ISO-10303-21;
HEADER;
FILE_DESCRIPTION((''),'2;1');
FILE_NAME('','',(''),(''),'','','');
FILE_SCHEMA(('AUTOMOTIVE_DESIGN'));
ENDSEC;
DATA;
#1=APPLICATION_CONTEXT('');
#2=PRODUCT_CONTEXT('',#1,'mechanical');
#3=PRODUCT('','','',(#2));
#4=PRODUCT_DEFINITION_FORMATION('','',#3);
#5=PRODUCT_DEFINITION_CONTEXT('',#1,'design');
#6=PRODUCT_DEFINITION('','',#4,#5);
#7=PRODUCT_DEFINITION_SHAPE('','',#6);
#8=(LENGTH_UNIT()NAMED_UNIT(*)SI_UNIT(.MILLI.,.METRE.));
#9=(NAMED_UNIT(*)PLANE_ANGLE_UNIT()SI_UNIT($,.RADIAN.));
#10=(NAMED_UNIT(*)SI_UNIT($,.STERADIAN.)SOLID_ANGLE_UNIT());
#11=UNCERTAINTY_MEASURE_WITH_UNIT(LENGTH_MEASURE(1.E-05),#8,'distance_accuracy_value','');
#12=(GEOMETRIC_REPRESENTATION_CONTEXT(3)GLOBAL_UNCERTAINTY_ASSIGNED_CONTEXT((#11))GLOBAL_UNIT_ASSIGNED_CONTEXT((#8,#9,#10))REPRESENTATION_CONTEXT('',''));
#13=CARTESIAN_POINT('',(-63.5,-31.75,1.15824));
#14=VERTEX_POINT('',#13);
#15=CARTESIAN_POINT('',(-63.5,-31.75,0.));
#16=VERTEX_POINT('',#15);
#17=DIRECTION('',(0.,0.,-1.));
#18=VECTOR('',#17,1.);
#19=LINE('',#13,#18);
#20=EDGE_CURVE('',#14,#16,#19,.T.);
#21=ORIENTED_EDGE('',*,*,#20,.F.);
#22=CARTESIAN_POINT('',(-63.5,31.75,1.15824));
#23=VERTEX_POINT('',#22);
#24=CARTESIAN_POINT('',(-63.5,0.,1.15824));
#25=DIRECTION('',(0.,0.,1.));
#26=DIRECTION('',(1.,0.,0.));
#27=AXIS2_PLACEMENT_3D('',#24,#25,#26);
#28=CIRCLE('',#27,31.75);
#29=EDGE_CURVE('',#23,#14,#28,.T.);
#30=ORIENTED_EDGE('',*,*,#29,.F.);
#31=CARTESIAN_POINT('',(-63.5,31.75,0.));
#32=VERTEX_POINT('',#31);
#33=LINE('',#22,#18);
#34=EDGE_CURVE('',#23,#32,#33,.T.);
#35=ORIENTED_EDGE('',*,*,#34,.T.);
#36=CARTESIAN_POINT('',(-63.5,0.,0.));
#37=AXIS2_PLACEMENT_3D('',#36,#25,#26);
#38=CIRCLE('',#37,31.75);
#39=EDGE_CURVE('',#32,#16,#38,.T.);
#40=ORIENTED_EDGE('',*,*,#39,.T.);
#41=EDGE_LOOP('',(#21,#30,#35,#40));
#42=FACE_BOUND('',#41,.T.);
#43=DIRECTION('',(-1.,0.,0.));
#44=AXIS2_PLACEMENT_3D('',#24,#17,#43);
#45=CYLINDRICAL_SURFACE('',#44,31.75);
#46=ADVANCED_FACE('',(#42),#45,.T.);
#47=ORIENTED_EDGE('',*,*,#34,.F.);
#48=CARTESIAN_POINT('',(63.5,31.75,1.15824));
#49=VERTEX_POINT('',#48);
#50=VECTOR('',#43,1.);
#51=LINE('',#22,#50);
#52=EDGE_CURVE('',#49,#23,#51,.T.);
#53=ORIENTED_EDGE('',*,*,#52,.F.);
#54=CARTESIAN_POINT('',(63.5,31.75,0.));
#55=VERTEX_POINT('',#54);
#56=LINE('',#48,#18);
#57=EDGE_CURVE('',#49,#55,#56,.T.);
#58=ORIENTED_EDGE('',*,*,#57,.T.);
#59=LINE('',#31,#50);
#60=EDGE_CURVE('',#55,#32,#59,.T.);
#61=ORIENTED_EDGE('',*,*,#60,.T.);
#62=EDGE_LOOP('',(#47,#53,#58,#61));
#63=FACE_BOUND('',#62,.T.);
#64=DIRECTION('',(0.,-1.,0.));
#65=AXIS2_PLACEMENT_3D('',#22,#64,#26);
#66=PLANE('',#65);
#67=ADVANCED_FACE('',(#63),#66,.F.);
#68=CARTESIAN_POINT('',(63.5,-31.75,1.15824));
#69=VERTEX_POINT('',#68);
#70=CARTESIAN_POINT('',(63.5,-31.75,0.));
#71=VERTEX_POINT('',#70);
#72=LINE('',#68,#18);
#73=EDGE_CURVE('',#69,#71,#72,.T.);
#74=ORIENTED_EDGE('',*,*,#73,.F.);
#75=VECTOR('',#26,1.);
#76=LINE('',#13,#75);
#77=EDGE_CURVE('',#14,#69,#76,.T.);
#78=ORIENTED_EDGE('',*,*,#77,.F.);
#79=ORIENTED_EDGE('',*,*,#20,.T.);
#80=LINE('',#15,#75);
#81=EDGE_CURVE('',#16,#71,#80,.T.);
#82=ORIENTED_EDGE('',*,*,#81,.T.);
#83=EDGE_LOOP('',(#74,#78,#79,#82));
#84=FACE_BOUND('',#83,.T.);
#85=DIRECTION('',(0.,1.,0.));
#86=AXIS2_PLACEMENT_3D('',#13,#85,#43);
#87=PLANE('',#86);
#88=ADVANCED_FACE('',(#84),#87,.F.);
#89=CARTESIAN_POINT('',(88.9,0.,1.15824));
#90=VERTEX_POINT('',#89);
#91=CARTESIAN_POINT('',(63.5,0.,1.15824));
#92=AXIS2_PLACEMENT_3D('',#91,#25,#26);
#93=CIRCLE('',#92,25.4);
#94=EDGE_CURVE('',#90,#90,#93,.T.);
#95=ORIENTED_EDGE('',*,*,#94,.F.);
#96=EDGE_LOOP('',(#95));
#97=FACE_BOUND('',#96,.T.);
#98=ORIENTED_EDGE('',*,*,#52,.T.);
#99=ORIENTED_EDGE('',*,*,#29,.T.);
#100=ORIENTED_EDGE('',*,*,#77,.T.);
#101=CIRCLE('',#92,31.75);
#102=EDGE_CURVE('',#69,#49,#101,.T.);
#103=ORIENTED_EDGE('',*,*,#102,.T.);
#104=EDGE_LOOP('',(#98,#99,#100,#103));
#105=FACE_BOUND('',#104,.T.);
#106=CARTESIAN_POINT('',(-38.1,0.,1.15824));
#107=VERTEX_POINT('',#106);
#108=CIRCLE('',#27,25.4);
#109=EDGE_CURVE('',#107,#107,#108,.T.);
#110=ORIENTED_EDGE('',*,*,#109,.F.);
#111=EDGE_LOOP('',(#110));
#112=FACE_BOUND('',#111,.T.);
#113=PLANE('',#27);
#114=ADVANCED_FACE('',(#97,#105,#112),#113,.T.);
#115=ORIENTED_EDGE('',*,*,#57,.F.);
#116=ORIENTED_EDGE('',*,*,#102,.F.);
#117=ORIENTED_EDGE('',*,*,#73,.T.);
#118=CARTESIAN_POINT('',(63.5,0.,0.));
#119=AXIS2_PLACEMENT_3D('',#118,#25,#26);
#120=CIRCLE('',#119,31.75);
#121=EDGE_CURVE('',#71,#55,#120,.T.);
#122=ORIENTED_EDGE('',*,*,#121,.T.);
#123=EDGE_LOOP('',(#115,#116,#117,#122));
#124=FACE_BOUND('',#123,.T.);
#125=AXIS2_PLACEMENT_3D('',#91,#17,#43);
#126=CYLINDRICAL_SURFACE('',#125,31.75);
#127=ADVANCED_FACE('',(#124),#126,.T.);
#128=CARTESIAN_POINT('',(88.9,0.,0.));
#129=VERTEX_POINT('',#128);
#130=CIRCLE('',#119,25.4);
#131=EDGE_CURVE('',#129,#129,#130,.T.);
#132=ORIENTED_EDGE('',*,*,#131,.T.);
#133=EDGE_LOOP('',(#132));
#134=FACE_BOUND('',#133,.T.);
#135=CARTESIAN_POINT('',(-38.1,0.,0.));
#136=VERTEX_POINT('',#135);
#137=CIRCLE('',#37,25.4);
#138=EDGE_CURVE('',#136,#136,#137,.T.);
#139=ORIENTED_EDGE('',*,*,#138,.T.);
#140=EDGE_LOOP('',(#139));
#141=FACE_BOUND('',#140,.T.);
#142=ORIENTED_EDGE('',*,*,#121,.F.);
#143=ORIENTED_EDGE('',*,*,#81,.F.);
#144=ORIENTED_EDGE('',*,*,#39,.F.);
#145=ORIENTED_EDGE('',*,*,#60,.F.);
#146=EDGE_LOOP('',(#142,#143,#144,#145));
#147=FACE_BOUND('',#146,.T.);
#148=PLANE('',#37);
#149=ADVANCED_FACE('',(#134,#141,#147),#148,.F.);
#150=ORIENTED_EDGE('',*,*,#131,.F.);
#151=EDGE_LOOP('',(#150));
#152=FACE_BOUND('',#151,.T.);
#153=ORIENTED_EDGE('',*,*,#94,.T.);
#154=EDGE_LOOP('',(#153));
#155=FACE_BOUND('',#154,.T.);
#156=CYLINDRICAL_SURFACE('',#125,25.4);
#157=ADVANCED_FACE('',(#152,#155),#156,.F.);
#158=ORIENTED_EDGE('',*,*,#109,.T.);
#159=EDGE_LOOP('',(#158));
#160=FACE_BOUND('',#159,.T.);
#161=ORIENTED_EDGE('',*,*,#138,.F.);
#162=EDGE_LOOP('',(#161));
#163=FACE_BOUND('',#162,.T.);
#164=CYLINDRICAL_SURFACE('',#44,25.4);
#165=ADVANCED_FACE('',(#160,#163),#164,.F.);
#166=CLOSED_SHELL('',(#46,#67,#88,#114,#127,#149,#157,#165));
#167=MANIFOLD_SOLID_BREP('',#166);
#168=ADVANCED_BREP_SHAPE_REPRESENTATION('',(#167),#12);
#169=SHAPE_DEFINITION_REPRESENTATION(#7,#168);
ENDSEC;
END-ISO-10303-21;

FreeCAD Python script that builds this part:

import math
import FreeCAD as App
import Part
import Sketcher
from FreeCAD import Vector
Q = App.Units.Quantity

doc = App.newDocument("Part")
body = doc.addObject("PartDesign::Body", "Body")

# Sketch on XY plane
sketch1 = doc.addObject("Sketcher::SketchObject", "Sketch")
body.addObject(sketch1)
sketch1.AttachmentSupport = (doc.XY_Plane, [""])
sketch1.MapMode = "FlatFace"
sketch1.addGeometry([
    Part.LineSegment(Vector(63.5, 31.75, 0), Vector(-63.5, 31.75, 0)),  # 0
    Part.ArcOfCircle(Part.Circle(Vector(-63.5, 0, 0), Vector(0, 0, 1), 31.75), math.radians(90), math.radians(270)),  # 1
    Part.LineSegment(Vector(-63.5, -31.75, 0), Vector(63.5, -31.75, 0)),  # 2
    Part.ArcOfCircle(Part.Circle(Vector(63.5, 0, 0), Vector(0, 0, 1), 31.75), math.radians(-90), math.radians(90)),  # 3
    Part.Circle(Vector(63.5, 0, 0), Vector(0, 0, 1), 25.4),  # 4
    Part.Circle(Vector(-63.5, 0, 0), Vector(0, 0, 1), 25.4),  # 5
], False)
sketch1.addConstraint([
    Sketcher.Constraint("Tangent", 0, 2, 1, 1),
    Sketcher.Constraint("Tangent", 1, 2, 2, 1),
    Sketcher.Constraint("Tangent", 2, 2, 3, 1),
    Sketcher.Constraint("Tangent", 3, 2, 0, 1),
    Sketcher.Constraint("Horizontal", 0),
    Sketcher.Constraint("Horizontal", 2),
    Sketcher.Constraint("Coincident", 4, 3, 3, 3),
    Sketcher.Constraint("Coincident", 5, 3, 1, 3),
    Sketcher.Constraint("Equal", 4, 5),
    Sketcher.Constraint("Symmetric", 1, 3, 3, 3, -1, 1),
    Sketcher.Constraint("Diameter", 4, Q("2 in")),
    Sketcher.Constraint("DistanceX", 0, 2, 0, 1, Q("5 in")),
    Sketcher.Constraint("Radius", 1, Q("1.25 in")),
])
pad1 = doc.addObject("PartDesign::Pad", "Pad")
body.addObject(pad1)
pad1.Profile = sketch1
pad1.Length = Q("0.0456 in")

doc.recompute()
